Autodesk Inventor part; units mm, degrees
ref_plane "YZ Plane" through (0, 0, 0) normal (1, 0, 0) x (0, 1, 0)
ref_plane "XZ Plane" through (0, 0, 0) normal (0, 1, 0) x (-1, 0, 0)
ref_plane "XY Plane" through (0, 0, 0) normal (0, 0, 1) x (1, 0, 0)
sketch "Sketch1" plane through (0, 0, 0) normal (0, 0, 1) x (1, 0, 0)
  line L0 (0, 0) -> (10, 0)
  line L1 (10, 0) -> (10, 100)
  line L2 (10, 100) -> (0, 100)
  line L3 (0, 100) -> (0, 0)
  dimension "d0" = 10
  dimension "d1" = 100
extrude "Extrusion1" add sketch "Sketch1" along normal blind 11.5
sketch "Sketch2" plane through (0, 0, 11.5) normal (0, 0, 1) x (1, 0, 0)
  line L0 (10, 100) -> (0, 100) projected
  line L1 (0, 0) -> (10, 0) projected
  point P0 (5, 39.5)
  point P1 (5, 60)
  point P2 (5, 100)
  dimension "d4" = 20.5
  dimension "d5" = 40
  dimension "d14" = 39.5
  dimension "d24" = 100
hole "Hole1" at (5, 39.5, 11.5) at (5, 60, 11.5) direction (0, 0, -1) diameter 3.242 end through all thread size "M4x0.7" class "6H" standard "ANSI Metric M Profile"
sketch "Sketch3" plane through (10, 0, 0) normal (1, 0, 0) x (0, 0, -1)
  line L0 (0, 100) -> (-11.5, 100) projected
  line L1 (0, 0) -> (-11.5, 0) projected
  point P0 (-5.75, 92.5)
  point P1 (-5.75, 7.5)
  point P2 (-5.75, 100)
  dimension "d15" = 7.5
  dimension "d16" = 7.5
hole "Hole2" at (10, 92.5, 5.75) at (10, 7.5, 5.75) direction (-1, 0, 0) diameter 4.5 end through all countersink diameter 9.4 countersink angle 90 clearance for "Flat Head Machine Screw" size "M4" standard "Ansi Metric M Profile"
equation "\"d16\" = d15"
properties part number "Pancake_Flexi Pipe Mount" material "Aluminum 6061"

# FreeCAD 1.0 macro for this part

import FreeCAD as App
import Part
import Sketcher
from FreeCAD import Vector

doc = App.newDocument("Part")
body = doc.addObject("PartDesign::Body", "Body")

sketch1 = doc.addObject("Sketcher::SketchObject", "Sketch")
body.addObject(sketch1)
sketch1.AttachmentSupport = (doc.XY_Plane, [""])
sketch1.MapMode = "FlatFace"
sketch1.addGeometry([
    Part.LineSegment(Vector(0, 100, 0), Vector(0, 0, 0)),
    Part.LineSegment(Vector(0, 0, 0), Vector(10, 0, 0)),
    Part.LineSegment(Vector(10, 0, 0), Vector(10, 100, 0)),
    Part.LineSegment(Vector(10, 100, 0), Vector(0, 100, 0)),
], False)
sketch1.addConstraint([
    Sketcher.Constraint("Coincident", 0, 2, 1, 1),
    Sketcher.Constraint("Coincident", 1, 2, 2, 1),
    Sketcher.Constraint("Coincident", 2, 2, 3, 1),
    Sketcher.Constraint("Coincident", 3, 2, 0, 1),
    Sketcher.Constraint("Vertical", 0),
    Sketcher.Constraint("Horizontal", 1),
    Sketcher.Constraint("Vertical", 2),
    Sketcher.Constraint("Horizontal", 3),
    Sketcher.Constraint("Coincident", 0, 2, -1, 1),
    Sketcher.Constraint("DistanceX", 1, 1, 1, 2, 10.0),
    Sketcher.Constraint("DistanceY", 0, 2, 0, 1, 100.0),
])
pad1 = doc.addObject("PartDesign::Pad", "Pad")
body.addObject(pad1)
pad1.Profile = sketch1
pad1.Length = 11.5

sketch2 = doc.addObject("Sketcher::SketchObject", "Sketch001")
body.addObject(sketch2)
sketch2.AttachmentSupport = (doc.XY_Plane, [""])
sketch2.MapMode = "FlatFace"
sketch2.AttachmentOffset = App.Placement(Vector(0, 0, 11.5), App.Rotation())
sketch2.addGeometry([
    Part.Circle(Vector(5, 39.5, 0), Vector(0, 0, 1), 1.6),
    Part.Circle(Vector(5, 60, 0), Vector(0, 0, 1), 1.6),
], False)
sketch2.addConstraint([
    Sketcher.Constraint("Equal", 0, 1),
    Sketcher.Constraint("Vertical", 0, 3, 1, 3),
    Sketcher.Constraint("Diameter", 0, 3.242),
    Sketcher.Constraint("DistanceX", -1, 1, 0, 3, 5.0),
    Sketcher.Constraint("DistanceY", -1, 1, 1, 3, 60.0),
    Sketcher.Constraint("DistanceY", -1, 1, 0, 3, 39.5),
])
doc.recompute()
hole = doc.addObject("PartDesign::Hole", "Hole")
body.addObject(hole)
hole.Profile = sketch2
hole.ThreadType = "None"
hole.Diameter = 3.242
hole.DepthType = "ThroughAll"

sketch3 = doc.addObject("Sketcher::SketchObject", "Sketch002")
body.addObject(sketch3)
sketch3.AttachmentSupport = (doc.YZ_Plane, [""])
sketch3.MapMode = "FlatFace"
sketch3.AttachmentOffset = App.Placement(Vector(0, 0, 10), App.Rotation())
sketch3.addGeometry([
    Part.Circle(Vector(92.5, 5.8, 0), Vector(0, 0, 1), 2.2),
    Part.Circle(Vector(7.5, 5.8, 0), Vector(0, 0, 1), 2.2),
], False)
sketch3.addConstraint([
    Sketcher.Constraint("Equal", 0, 1),
    Sketcher.Constraint("Horizontal", 0, 3, 1, 3),
    Sketcher.Constraint("Diameter", 0, 4.5),
    Sketcher.Constraint("DistanceX", 1, 3, 0, 3, 85.0),
    Sketcher.Constraint("DistanceX", -1, 1, 0, 3, 92.5),
    Sketcher.Constraint("DistanceY", -1, 1, 0, 3, 5.75),
])
doc.recompute()
hole2 = doc.addObject("PartDesign::Hole", "Hole001")
body.addObject(hole2)
hole2.Profile = sketch3
hole2.ThreadType = "None"
hole2.Diameter = 4.5
hole2.DepthType = "ThroughAll"
hole2.HoleCutType = "Countersink"
hole2.HoleCutDiameter = 9.4
hole2.HoleCutCountersinkAngle = 90

doc.recompute()
